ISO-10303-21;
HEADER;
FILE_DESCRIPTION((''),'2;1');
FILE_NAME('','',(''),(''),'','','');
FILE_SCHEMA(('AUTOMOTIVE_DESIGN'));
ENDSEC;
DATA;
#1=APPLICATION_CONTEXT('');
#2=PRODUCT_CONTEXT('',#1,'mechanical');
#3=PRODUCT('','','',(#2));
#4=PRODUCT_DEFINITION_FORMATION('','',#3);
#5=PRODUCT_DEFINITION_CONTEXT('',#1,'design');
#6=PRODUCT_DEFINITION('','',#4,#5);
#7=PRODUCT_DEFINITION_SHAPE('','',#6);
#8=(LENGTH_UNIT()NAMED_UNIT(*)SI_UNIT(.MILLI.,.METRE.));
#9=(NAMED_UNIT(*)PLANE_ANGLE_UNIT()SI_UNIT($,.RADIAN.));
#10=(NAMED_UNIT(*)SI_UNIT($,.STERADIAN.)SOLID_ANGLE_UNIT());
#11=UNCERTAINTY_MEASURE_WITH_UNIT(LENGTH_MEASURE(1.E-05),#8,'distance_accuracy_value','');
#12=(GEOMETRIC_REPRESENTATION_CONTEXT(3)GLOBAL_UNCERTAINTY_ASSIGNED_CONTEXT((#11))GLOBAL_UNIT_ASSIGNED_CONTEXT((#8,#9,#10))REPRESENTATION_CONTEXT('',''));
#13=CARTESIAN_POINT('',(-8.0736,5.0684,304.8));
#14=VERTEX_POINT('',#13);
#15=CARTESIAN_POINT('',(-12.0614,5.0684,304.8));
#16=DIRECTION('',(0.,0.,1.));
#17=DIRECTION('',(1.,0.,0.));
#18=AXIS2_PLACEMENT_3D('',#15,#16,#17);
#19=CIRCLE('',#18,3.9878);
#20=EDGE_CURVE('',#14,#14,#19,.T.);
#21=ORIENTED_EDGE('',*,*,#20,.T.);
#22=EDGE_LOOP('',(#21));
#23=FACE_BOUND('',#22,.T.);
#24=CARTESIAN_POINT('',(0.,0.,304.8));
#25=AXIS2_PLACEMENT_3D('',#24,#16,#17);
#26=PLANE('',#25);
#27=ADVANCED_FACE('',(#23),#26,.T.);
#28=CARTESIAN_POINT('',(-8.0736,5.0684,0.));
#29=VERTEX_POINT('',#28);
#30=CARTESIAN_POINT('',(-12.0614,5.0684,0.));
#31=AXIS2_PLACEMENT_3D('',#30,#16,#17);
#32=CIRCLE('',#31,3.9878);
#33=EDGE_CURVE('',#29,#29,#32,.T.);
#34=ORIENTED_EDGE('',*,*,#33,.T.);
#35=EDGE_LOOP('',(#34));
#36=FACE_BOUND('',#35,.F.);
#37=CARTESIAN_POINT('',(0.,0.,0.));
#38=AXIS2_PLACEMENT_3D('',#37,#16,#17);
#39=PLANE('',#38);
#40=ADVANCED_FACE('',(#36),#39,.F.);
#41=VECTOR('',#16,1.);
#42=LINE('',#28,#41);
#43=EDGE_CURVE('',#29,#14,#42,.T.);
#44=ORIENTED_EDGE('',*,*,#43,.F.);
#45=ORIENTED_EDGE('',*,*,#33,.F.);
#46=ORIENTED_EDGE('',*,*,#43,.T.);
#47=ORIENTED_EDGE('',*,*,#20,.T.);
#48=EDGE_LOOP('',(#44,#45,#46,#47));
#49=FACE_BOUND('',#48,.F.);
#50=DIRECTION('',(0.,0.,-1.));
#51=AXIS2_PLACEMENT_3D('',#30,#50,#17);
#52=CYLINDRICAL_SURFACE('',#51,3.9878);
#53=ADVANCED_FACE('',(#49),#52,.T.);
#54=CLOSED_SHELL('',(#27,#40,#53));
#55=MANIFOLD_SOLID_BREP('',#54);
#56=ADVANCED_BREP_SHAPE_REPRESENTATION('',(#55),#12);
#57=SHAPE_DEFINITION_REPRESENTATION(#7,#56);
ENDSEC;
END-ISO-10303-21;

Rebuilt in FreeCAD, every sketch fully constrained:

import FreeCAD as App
import Part
import Sketcher
Q = App.Units.Quantity

doc = App.newDocument("Part")
body = doc.addObject("PartDesign::Body", "Body")

sketch1 = body.newObject("Sketcher::SketchObject", "Sketch")
sketch1.AttachmentSupport = (doc.getObject("XY_Plane"), [""])
sketch1.MapMode = "FlatFace"
sketch1.addGeometry(Part.Circle(App.Vector(-12.0614, 5.0684, 0), App.Vector(0, 0, 1), 3.9878), False)
sketch1.addConstraint([
    Sketcher.Constraint("Diameter", 0, Q("0.314 in")),
    Sketcher.Constraint("DistanceX", 0, 3, -1, 1, Q("12.0614 mm")),
    Sketcher.Constraint("DistanceY", -1, 1, 0, 3, Q("5.0684 mm")),
])
pad1 = body.newObject("PartDesign::Pad", "Pad")
pad1.Profile = sketch1
pad1.Length = Q("12 in")

doc.recompute()
